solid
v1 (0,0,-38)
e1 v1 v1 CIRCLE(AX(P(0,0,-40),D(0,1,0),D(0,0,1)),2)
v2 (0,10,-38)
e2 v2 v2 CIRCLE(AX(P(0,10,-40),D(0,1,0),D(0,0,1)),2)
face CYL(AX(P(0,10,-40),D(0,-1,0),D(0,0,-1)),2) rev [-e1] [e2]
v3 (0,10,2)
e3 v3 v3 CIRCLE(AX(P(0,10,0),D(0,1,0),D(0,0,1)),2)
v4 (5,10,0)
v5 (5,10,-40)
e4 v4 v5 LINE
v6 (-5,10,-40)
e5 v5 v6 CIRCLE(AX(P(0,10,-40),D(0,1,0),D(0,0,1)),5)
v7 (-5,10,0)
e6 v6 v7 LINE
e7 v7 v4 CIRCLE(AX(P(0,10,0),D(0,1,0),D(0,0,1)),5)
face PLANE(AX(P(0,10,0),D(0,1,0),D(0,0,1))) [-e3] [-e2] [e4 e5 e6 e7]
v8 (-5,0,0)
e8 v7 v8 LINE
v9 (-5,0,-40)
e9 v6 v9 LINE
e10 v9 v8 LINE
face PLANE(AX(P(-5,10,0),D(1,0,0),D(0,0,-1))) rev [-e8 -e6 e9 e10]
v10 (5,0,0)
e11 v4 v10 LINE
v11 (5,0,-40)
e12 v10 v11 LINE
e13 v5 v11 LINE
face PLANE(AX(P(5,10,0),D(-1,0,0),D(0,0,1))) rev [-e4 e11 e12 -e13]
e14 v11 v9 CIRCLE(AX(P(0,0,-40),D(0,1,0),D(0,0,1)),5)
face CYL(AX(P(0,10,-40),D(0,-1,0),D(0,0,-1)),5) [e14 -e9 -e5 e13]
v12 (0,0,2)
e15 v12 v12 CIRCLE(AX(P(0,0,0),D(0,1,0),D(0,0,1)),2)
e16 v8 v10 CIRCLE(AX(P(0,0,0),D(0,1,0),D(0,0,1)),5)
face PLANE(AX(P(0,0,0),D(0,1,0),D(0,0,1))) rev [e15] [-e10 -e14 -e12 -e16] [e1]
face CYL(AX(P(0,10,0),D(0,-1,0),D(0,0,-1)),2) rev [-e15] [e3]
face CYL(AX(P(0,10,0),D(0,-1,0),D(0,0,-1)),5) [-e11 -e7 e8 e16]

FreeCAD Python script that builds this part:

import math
import FreeCAD as App
import Part
import Sketcher
from FreeCAD import Vector

doc = App.newDocument("Part")
body = doc.addObject("PartDesign::Body", "Body")

# Sketch on XZ plane
sketch1 = body.newObject("Sketcher::SketchObject", "Sketch")
sketch1.AttachmentSupport = (doc.getObject("XZ_Plane"), [""])
sketch1.MapMode = "FlatFace"
sketch1.addGeometry(Part.LineSegment(Vector(5, 0, 0), Vector(5, -40, 0)), False)
sketch1.addGeometry(Part.ArcOfCircle(Part.Circle(Vector(0, -40, 0), Vector(0, 0, 1), 5), math.radians(180), math.radians(360)), False)
sketch1.addGeometry(Part.LineSegment(Vector(-5, -40, 0), Vector(-5, 0, 0)), False)
sketch1.addGeometry(Part.ArcOfCircle(Part.Circle(Vector(0, 0, 0), Vector(0, 0, 1), 5), math.radians(0), math.radians(180)), False)
sketch1.addGeometry(Part.Circle(Vector(0, 0, 0), Vector(0, 0, 1), 2), False)
sketch1.addGeometry(Part.Circle(Vector(0, -40, 0), Vector(0, 0, 1), 2), False)
sketch1.addConstraint(Sketcher.Constraint("Tangent", 0, 2, 1, 2))
sketch1.addConstraint(Sketcher.Constraint("Tangent", 1, 1, 2, 1))
sketch1.addConstraint(Sketcher.Constraint("Tangent", 2, 2, 3, 2))
sketch1.addConstraint(Sketcher.Constraint("Tangent", 3, 1, 0, 1))
sketch1.addConstraint(Sketcher.Constraint("Vertical", 0))
sketch1.addConstraint(Sketcher.Constraint("Vertical", 2))
sketch1.addConstraint(Sketcher.Constraint("Coincident", 3, 3, -1, 1))
sketch1.addConstraint(Sketcher.Constraint("Coincident", 4, 3, -1, 1))
sketch1.addConstraint(Sketcher.Constraint("Coincident", 5, 3, 1, 3))
sketch1.addConstraint(Sketcher.Constraint("Equal", 4, 5))
sketch1.addConstraint(Sketcher.Constraint("Diameter", 4, 4.0))
sketch1.addConstraint(Sketcher.Constraint("Radius", 1, 5.0))
sketch1.addConstraint(Sketcher.Constraint("DistanceY", 0, 2, 0, 1, 40.0))
pad1 = body.newObject("PartDesign::Pad", "Pad")
pad1.Profile = sketch1
pad1.Length = 10
pad1.Reversed = True

doc.recompute()
